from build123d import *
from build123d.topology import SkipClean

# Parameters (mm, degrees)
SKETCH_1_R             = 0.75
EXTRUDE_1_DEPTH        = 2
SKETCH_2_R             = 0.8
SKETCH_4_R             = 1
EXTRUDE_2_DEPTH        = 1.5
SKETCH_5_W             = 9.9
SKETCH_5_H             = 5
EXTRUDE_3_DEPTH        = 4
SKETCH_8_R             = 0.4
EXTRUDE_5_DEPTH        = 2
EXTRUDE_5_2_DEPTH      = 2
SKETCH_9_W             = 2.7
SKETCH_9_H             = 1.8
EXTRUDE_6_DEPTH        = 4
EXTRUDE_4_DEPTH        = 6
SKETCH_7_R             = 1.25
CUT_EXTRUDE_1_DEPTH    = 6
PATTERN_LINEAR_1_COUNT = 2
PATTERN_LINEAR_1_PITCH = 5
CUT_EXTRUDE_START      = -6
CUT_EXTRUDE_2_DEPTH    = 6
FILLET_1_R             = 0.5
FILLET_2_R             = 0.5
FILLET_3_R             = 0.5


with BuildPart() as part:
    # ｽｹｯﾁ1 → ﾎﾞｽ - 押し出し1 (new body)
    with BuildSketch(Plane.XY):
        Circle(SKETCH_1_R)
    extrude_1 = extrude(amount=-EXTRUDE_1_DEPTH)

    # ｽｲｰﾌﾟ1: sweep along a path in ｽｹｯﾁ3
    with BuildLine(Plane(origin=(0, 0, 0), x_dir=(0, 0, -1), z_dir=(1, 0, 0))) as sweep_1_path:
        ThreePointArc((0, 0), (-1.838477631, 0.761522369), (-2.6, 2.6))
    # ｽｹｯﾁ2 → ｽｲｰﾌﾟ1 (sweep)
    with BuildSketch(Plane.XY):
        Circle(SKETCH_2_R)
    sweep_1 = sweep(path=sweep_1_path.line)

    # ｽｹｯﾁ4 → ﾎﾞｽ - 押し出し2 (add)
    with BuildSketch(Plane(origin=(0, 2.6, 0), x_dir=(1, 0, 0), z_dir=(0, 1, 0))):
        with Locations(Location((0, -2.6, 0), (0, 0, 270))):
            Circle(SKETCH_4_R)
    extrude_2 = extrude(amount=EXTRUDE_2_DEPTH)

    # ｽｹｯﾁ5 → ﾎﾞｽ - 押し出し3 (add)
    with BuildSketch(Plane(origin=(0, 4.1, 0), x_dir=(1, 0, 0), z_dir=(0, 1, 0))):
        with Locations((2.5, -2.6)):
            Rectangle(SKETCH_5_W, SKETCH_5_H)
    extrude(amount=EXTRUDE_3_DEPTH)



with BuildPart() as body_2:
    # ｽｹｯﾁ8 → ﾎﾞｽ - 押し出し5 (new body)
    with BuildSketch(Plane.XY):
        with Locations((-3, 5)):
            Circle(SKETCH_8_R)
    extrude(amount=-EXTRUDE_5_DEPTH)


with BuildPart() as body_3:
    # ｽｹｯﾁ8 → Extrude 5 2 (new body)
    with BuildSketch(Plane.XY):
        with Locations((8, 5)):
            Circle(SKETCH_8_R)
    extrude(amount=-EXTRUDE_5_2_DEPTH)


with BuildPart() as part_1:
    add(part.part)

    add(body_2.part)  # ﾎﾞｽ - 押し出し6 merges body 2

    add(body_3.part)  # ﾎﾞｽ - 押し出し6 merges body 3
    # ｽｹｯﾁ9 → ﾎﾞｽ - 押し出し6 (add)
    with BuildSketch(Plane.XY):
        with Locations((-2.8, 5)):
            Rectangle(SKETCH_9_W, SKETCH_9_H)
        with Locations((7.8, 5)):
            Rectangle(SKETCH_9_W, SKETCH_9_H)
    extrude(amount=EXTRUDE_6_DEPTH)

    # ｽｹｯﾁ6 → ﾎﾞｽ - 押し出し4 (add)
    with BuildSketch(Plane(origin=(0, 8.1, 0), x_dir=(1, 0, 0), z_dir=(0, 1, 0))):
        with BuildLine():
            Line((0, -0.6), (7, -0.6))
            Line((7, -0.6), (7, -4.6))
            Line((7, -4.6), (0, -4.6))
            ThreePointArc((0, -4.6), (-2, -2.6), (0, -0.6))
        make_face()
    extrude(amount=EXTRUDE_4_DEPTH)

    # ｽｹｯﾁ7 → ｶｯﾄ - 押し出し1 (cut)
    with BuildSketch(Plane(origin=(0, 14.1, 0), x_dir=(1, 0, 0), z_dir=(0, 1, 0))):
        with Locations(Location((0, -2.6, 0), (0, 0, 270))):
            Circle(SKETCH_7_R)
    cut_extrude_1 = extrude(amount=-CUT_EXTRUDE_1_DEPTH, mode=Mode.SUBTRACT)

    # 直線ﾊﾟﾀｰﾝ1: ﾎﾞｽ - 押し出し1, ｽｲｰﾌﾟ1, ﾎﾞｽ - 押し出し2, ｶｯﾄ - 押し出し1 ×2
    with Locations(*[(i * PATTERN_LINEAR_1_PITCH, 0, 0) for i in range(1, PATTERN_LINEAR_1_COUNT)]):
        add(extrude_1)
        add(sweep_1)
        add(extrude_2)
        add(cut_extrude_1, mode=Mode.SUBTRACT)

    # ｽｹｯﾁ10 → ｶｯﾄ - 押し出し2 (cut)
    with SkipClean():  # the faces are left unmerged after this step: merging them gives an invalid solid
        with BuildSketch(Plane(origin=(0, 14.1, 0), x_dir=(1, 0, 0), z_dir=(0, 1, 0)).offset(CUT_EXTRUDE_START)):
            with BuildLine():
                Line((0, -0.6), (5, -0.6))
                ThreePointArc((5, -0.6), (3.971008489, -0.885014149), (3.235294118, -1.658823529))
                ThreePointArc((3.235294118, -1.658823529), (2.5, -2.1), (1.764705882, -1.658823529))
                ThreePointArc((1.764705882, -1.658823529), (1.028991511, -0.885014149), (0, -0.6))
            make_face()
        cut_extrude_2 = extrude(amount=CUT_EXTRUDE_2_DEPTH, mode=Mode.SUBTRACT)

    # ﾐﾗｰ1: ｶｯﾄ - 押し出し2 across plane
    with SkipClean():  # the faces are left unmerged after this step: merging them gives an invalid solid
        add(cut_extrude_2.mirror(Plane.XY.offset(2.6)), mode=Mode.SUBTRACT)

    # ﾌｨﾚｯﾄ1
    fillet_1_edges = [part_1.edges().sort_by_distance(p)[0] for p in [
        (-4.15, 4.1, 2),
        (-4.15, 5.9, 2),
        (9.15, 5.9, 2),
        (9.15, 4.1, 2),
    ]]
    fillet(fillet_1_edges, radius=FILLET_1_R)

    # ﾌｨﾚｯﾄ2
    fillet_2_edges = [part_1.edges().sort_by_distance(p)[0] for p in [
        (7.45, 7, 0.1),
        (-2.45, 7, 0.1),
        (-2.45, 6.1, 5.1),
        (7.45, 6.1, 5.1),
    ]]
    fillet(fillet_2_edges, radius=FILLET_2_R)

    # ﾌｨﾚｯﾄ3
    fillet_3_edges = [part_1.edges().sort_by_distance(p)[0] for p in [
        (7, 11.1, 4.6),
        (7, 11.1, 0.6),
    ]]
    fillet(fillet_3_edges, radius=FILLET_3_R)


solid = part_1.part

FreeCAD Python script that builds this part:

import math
import FreeCAD as App
import Part
import Sketcher


def edges_at(feature, points):
    """Names of the edges that pass closest to the given points."""
    edges = feature.Shape.Edges
    near = lambda p: min(range(len(edges)), key=lambda i: edges[i].distToShape(Part.Vertex(*p))[0])
    return sorted({f"Edge{near(p) + 1}" for p in points})


def add_polygon(sketch, points):
    """Adds a closed chain of lines whose ends are joined by coincident constraints."""
    first, n = sketch.GeometryCount, len(points)
    for a, b in zip(points, points[1:] + points[:1]):
        sketch.addGeometry(Part.LineSegment(App.Vector(*a, 0), App.Vector(*b, 0)), False)
    for i in range(n):
        sketch.addConstraint(Sketcher.Constraint("Coincident", first + i, 2, first + (i + 1) % n, 1))

doc = App.newDocument("Part")
params = doc.addObject("Spreadsheet::Sheet", "Params")
for row, (alias, value) in enumerate([
    ("sketch1_diameter", "1.5 mm"),
    ("pad1_length", "2 mm"),
    ("sketch2_diameter", "1.6 mm"),
    ("sketch3_radius", "2.6 mm"),
    ("sketch4_diameter", "2 mm"),
    ("pad2_length", "1.5 mm"),
    ("sketch5_height", "5 mm"),
    ("sketch5_width", "9.9 mm"),
    ("pad3_length", "4 mm"),
    ("sketch6_diameter", "0.8 mm"),
    ("pad4_length", "2 mm"),
    ("sketch7_diameter", "0.8 mm"),
    ("pad5_length", "2 mm"),
    ("sketch8_width", "2.7 mm"),
    ("sketch8_height", "1.8 mm"),
    ("pad6_length", "4 mm"),
    ("sketch9_radius", "2 mm"),
    ("sketch9_width", "7 mm"),
    ("pad7_length", "6 mm"),
    ("sketch10_diameter", "2.5 mm"),
    ("pocket1_length", "6 mm"),
    ("linearpattern_pitch", "5 mm"),
    ("sketch11_radius", "2 mm"),
    ("sketch11_width", "5 mm"),
    ("pocket2_length", "6 mm"),
    ("fillet_radius", "0.5 mm"),
    ("fillet2_radius", "0.5 mm"),
    ("fillet3_radius", "0.5 mm"),
], start=1):
    params.set(f"A{row}", alias)
    params.set(f"B{row}", "=" + value)
    params.setAlias(f"B{row}", alias)

body = doc.addObject("PartDesign::Body", "Body")

# Sketch on XY plane
sketch1 = doc.addObject("Sketcher::SketchObject", "Sketch")
body.addObject(sketch1)
sketch1.AttachmentSupport = (doc.XY_Plane, [""])
sketch1.MapMode = "FlatFace"
sketch1.addGeometry(Part.Circle(App.Vector(0, 0, 0), App.Vector(0, 0, 1), 0.8), False)
sketch1.addConstraint([
    Sketcher.Constraint("Coincident", 0, 3, -1, 1),
    Sketcher.Constraint("Diameter", 0, 1.5),
])
sketch1.setExpression("Constraints[1]", "Params.sketch1_diameter")
pad1 = doc.addObject("PartDesign::Pad", "Pad")
body.addObject(pad1)
pad1.Profile = sketch1
pad1.setExpression("Length", "Params.pad1_length")
pad1.Reversed = True

# Sketch on XY plane
sketch2 = doc.addObject("Sketcher::SketchObject", "Sketch001")
body.addObject(sketch2)
sketch2.AttachmentSupport = (doc.XY_Plane, [""])
sketch2.MapMode = "FlatFace"
sketch2.addGeometry(Part.Circle(App.Vector(0, 0, 0), App.Vector(0, 0, 1), 0.8), False)
sketch2.addConstraint([
    Sketcher.Constraint("Coincident", 0, 3, -1, 1),
    Sketcher.Constraint("Diameter", 0, 1.6),
])
sketch2.setExpression("Constraints[1]", "Params.sketch2_diameter")

# Sketch on YZ plane
sketch3 = doc.addObject("Sketcher::SketchObject", "Sketch002")
body.addObject(sketch3)
sketch3.AttachmentSupport = (doc.YZ_Plane, [""])
sketch3.MapMode = "FlatFace"
sketch3.addGeometry(Part.ArcOfCircle(Part.Circle(App.Vector(2.6, 0, 0), App.Vector(0, 0, 1), 2.6), math.radians(90), math.radians(180)), False)
sketch3.addConstraint([
    Sketcher.Constraint("Coincident", 0, 2, -1, 1),
    Sketcher.Constraint("PointOnObject", 0, 3, -1),
    Sketcher.Constraint("Radius", 0, 2.6),
    Sketcher.Constraint("DistanceX", -1, 1, 0, 1, 2.6),
])
sketch3.setExpression("Constraints[2]", "Params.sketch3_radius")
doc.recompute()

additivepipe = doc.addObject("PartDesign::AdditivePipe", "AdditivePipe")
body.addObject(additivepipe)
additivepipe.Profile = sketch2
additivepipe.Spine = (sketch3, ["Edge1"])

# Sketch on XZ plane
sketch4 = doc.addObject("Sketcher::SketchObject", "Sketch003")
body.addObject(sketch4)
sketch4.AttachmentSupport = (doc.XZ_Plane, [""])
sketch4.MapMode = "FlatFace"
sketch4.AttachmentOffset = App.Placement(App.Vector(0, 0, -2.6), App.Rotation())
sketch4.addGeometry(Part.Circle(App.Vector(0, 2.6, 0), App.Vector(0, 0, 1), 1), False)
sketch4.addConstraint([
    Sketcher.Constraint("PointOnObject", 0, 3, -2),
    Sketcher.Constraint("Diameter", 0, 2.0),
    Sketcher.Constraint("DistanceY", -1, 1, 0, 3, 2.6),
])
sketch4.setExpression("Constraints[1]", "Params.sketch4_diameter")
pad2 = doc.addObject("PartDesign::Pad", "Pad001")
body.addObject(pad2)
pad2.Profile = sketch4
pad2.setExpression("Length", "Params.pad2_length")
pad2.Reversed = True

# Sketch on XZ plane
sketch5 = doc.addObject("Sketcher::SketchObject", "Sketch004")
body.addObject(sketch5)
sketch5.AttachmentSupport = (doc.XZ_Plane, [""])
sketch5.MapMode = "FlatFace"
sketch5.AttachmentOffset = App.Placement(App.Vector(0, 0, -4.1), App.Rotation())
add_polygon(sketch5, [(-2, 0), (-2, 5), (7, 5), (7, 0)])  # lines 0-3
sketch5.addConstraint([
    Sketcher.Constraint("Vertical", 0),
    Sketcher.Constraint("Horizontal", 1),
    Sketcher.Constraint("Vertical", 2),
    Sketcher.Constraint("Horizontal", 3),
    Sketcher.Constraint("DistanceY", 0, 1, 0, 2, 5.0),
    Sketcher.Constraint("DistanceX", 1, 1, 1, 2, 9.9),
    Sketcher.Constraint("DistanceY", -1, 1, 0, 2, 5.1),
    Sketcher.Constraint("DistanceX", 0, 2, -1, 1, 2.45),
])
sketch5.setExpression("Constraints[8]", "Params.sketch5_height")
sketch5.setExpression("Constraints[9]", "Params.sketch5_width")
pad3 = doc.addObject("PartDesign::Pad", "Pad002")
body.addObject(pad3)
pad3.Profile = sketch5
pad3.setExpression("Length", "Params.pad3_length")
pad3.Reversed = True
body2 = doc.addObject("PartDesign::Body", "Body001")

# Sketch on XY plane
sketch6 = doc.addObject("Sketcher::SketchObject", "Sketch005")
body2.addObject(sketch6)
sketch6.AttachmentSupport = (doc.getObject("XY_Plane001"), [""])
sketch6.MapMode = "FlatFace"
sketch6.addGeometry(Part.Circle(App.Vector(-3, 5, 0), App.Vector(0, 0, 1), 0.4), False)
sketch6.addConstraint([
    Sketcher.Constraint("Diameter", 0, 0.8),
    Sketcher.Constraint("DistanceX", 0, 3, -1, 1, 3.0),
    Sketcher.Constraint("DistanceY", -1, 1, 0, 3, 5.0),
])
sketch6.setExpression("Constraints[0]", "Params.sketch6_diameter")
pad4 = doc.addObject("PartDesign::Pad", "Pad003")
body2.addObject(pad4)
pad4.Profile = sketch6
pad4.setExpression("Length", "Params.pad4_length")
pad4.Reversed = True
body3 = doc.addObject("PartDesign::Body", "Body002")

# Sketch on XY plane
sketch7 = doc.addObject("Sketcher::SketchObject", "Sketch006")
body3.addObject(sketch7)
sketch7.AttachmentSupport = (doc.getObject("XY_Plane002"), [""])
sketch7.MapMode = "FlatFace"
sketch7.addGeometry(Part.Circle(App.Vector(8, 5, 0), App.Vector(0, 0, 1), 0.4), False)
sketch7.addConstraint([
    Sketcher.Constraint("Diameter", 0, 0.8),
    Sketcher.Constraint("DistanceX", -1, 1, 0, 3, 8.0),
    Sketcher.Constraint("DistanceY", -1, 1, 0, 3, 5.0),
])
sketch7.setExpression("Constraints[0]", "Params.sketch7_diameter")
pad5 = doc.addObject("PartDesign::Pad", "Pad004")
body3.addObject(pad5)
pad5.Profile = sketch7
pad5.setExpression("Length", "Params.pad5_length")
pad5.Reversed = True
body.AllowCompound = True
doc.recompute()

boolean = doc.addObject("PartDesign::Boolean", "Boolean")
body.addObject(boolean)
boolean.Type = "Fuse"
boolean.addObjects([body2])
doc.recompute()

boolean2 = doc.addObject("PartDesign::Boolean", "Boolean001")
body.addObject(boolean2)
boolean2.Type = "Fuse"
boolean2.addObjects([body3])

# Sketch on XY plane
sketch8 = doc.addObject("Sketcher::SketchObject", "Sketch007")
body.addObject(sketch8)
sketch8.AttachmentSupport = (doc.XY_Plane, [""])
sketch8.MapMode = "FlatFace"
add_polygon(sketch8, [(-4.2, 5.9), (-4.2, 4.1), (-1.4, 4.1), (-1.4, 5.9)])  # lines 0-3
add_polygon(sketch8, [(6.5, 5.9), (6.5, 4.1), (9.2, 4.1), (9.2, 5.9)])  # lines 4-7
sketch8.addConstraint([
    Sketcher.Constraint("Vertical", 0),
    Sketcher.Constraint("Horizontal", 1),
    Sketcher.Constraint("Vertical", 2),
    Sketcher.Constraint("Horizontal", 3),
    Sketcher.Constraint("Vertical", 4),
    Sketcher.Constraint("Horizontal", 5),
    Sketcher.Constraint("Vertical", 6),
    Sketcher.Constraint("Horizontal", 7),
    Sketcher.Constraint("Horizontal", 1, 2, 4, 2),
    Sketcher.Constraint("Horizontal", 3, 2, 6, 2),
    Sketcher.Constraint("Equal", 3, 5),
    Sketcher.Constraint("DistanceX", 1, 1, 1, 2, 2.7),
    Sketcher.Constraint("DistanceY", 0, 2, 0, 1, 1.8),
    Sketcher.Constraint("DistanceY", -1, 1, 0, 2, 4.1),
    Sketcher.Constraint("DistanceX", 1, 2, 4, 2, 7.9),
    Sketcher.Constraint("DistanceX", 0, 2, -1, 1, 4.15),
])
sketch8.setExpression("Constraints[19]", "Params.sketch8_width")
sketch8.setExpression("Constraints[20]", "Params.sketch8_height")
pad6 = doc.addObject("PartDesign::Pad", "Pad005")
body.addObject(pad6)
pad6.Profile = sketch8
pad6.setExpression("Length", "Params.pad6_length")

# Sketch on XZ plane
sketch9 = doc.addObject("Sketcher::SketchObject", "Sketch008")
body.addObject(sketch9)
sketch9.AttachmentSupport = (doc.XZ_Plane, [""])
sketch9.MapMode = "FlatFace"
sketch9.AttachmentOffset = App.Placement(App.Vector(0, 0, -8.1), App.Rotation())
sketch9.addGeometry([
    Part.LineSegment(App.Vector(7, 0.6, 0), App.Vector(0, 0.6, 0)),
    Part.ArcOfCircle(Part.Circle(App.Vector(0, 2.6, 0), App.Vector(0, 0, 1), 2), math.radians(90), math.radians(270)),
    Part.LineSegment(App.Vector(0, 4.6, 0), App.Vector(7, 4.6, 0)),
    Part.LineSegment(App.Vector(7, 4.6, 0), App.Vector(7, 0.6, 0)),
], False)
sketch9.addConstraint([
    Sketcher.Constraint("Tangent", 0, 2, 1, 2),
    Sketcher.Constraint("Tangent", 1, 1, 2, 1),
    Sketcher.Constraint("Coincident", 2, 2, 3, 1),
    Sketcher.Constraint("Coincident", 3, 2, 0, 1),
    Sketcher.Constraint("Horizontal", 0),
    Sketcher.Constraint("Horizontal", 2),
    Sketcher.Constraint("Vertical", 3),
    Sketcher.Constraint("PointOnObject", 1, 3, -2),
    Sketcher.Constraint("Radius", 1, 2.0),
    Sketcher.Constraint("DistanceX", 0, 2, 0, 1, 7.0),
    Sketcher.Constraint("DistanceY", -1, 1, 1, 3, 2.6),
])
sketch9.setExpression("Constraints[8]", "Params.sketch9_radius")
sketch9.setExpression("Constraints[9]", "Params.sketch9_width")
pad7 = doc.addObject("PartDesign::Pad", "Pad006")
body.addObject(pad7)
pad7.Profile = sketch9
pad7.setExpression("Length", "Params.pad7_length")
pad7.Reversed = True

# Sketch on XZ plane
sketch10 = doc.addObject("Sketcher::SketchObject", "Sketch009")
body.addObject(sketch10)
sketch10.AttachmentSupport = (doc.XZ_Plane, [""])
sketch10.MapMode = "FlatFace"
sketch10.AttachmentOffset = App.Placement(App.Vector(0, 0, -14.1), App.Rotation())
sketch10.addGeometry(Part.Circle(App.Vector(0, 2.6, 0), App.Vector(0, 0, 1), 1.2), False)
sketch10.addConstraint([
    Sketcher.Constraint("PointOnObject", 0, 3, -2),
    Sketcher.Constraint("Diameter", 0, 2.5),
    Sketcher.Constraint("DistanceY", -1, 1, 0, 3, 2.6),
])
sketch10.setExpression("Constraints[1]", "Params.sketch10_diameter")
pocket1 = doc.addObject("PartDesign::Pocket", "Pocket")
body.addObject(pocket1)
pocket1.Profile = sketch10
pocket1.setExpression("Length", "Params.pocket1_length")
pocket1.Reversed = True
doc.recompute()

linearpattern = doc.addObject("PartDesign::LinearPattern", "LinearPattern")
body.addObject(linearpattern)
linearpattern.Originals = [pad1, additivepipe, pad2, pocket1]
linearpattern.Direction = (doc.X_Axis, [""])
linearpattern.Mode = "offset"
linearpattern.setExpression("Offset", "Params.linearpattern_pitch")
linearpattern.Occurrences = 2
body.Tip = linearpattern

# Sketch on XZ plane
sketch11 = doc.addObject("Sketcher::SketchObject", "Sketch010")
body.addObject(sketch11)
sketch11.AttachmentSupport = (doc.XZ_Plane, [""])
sketch11.MapMode = "FlatFace"
sketch11.AttachmentOffset = App.Placement(App.Vector(0, 0, -8.1), App.Rotation())
sketch11.addGeometry([
    Part.LineSegment(App.Vector(5, 0.6, 0), App.Vector(0, 0.6, 0)),
    Part.ArcOfCircle(Part.Circle(App.Vector(0, 2.6, 0), App.Vector(0, 0, 1), 2), math.radians(-90), math.radians(-28)),
    Part.ArcOfCircle(Part.Circle(App.Vector(2.5, 1.3, 0), App.Vector(0, 0, 1), 0.8), math.radians(28), math.radians(152)),
    Part.ArcOfCircle(Part.Circle(App.Vector(5, 2.6, 0), App.Vector(0, 0, 1), 2), math.radians(-152), math.radians(-90)),
], False)
sketch11.addConstraint([
    Sketcher.Constraint("Tangent", 0, 2, 1, 1),
    Sketcher.Constraint("Tangent", 1, 2, 2, 2),
    Sketcher.Constraint("Tangent", 2, 1, 3, 1),
    Sketcher.Constraint("Tangent", 3, 2, 0, 1),
    Sketcher.Constraint("Horizontal", 0),
    Sketcher.Constraint("Equal", 1, 3),
    Sketcher.Constraint("PointOnObject", 1, 3, -2),
    Sketcher.Constraint("Radius", 1, 2.0),
    Sketcher.Constraint("DistanceX", 0, 2, 0, 1, 5.0),
    Sketcher.Constraint("DistanceY", -1, 1, 1, 3, 2.6),
    Sketcher.Constraint("Radius", 2, 0.833333),
])
sketch11.setExpression("Constraints[7]", "Params.sketch11_radius")
sketch11.setExpression("Constraints[8]", "Params.sketch11_width")
pocket2 = doc.addObject("PartDesign::Pocket", "Pocket001")
body.addObject(pocket2)
pocket2.Profile = sketch11
pocket2.setExpression("Length", "Params.pocket2_length")
doc.recompute()

datumplane = doc.addObject("PartDesign::Plane", "DatumPlane")
body.addObject(datumplane)
datumplane.AttachmentSupport = (doc.XY_Plane, [""])
datumplane.MapMode = "FlatFace"
datumplane.AttachmentOffset = App.Placement(App.Vector(0, 0, 2.6), App.Rotation())
mirrored = doc.addObject("PartDesign::Mirrored", "Mirrored")
body.addObject(mirrored)
mirrored.Originals = [pocket2]
mirrored.MirrorPlane = (datumplane, [""])
body.Tip = mirrored
doc.recompute()

fillet = doc.addObject("PartDesign::Fillet", "Fillet")
body.addObject(fillet)
fillet.Base = (mirrored, edges_at(mirrored, [
    (-4.15, 4.1, 2),
    (-4.15, 5.9, 2),
    (9.15, 5.9, 2),
    (9.15, 4.1, 2),
]))
fillet.setExpression("Radius", "Params.fillet_radius")
doc.recompute()

fillet2 = doc.addObject("PartDesign::Fillet", "Fillet001")
body.addObject(fillet2)
fillet2.Base = (fillet, edges_at(fillet, [
    (7.45, 7, 0.1),
    (-2.45, 7, 0.1),
    (-2.45, 6.1, 5.1),
    (7.45, 6.1, 5.1),
]))
fillet2.setExpression("Radius", "Params.fillet2_radius")
doc.recompute()

fillet3 = doc.addObject("PartDesign::Fillet", "Fillet002")
body.addObject(fillet3)
fillet3.Base = (fillet2, edges_at(fillet2, [(7, 11.1, 4.6), (7, 11.1, 0.6)]))
fillet3.setExpression("Radius", "Params.fillet3_radius")

doc.recompute()
